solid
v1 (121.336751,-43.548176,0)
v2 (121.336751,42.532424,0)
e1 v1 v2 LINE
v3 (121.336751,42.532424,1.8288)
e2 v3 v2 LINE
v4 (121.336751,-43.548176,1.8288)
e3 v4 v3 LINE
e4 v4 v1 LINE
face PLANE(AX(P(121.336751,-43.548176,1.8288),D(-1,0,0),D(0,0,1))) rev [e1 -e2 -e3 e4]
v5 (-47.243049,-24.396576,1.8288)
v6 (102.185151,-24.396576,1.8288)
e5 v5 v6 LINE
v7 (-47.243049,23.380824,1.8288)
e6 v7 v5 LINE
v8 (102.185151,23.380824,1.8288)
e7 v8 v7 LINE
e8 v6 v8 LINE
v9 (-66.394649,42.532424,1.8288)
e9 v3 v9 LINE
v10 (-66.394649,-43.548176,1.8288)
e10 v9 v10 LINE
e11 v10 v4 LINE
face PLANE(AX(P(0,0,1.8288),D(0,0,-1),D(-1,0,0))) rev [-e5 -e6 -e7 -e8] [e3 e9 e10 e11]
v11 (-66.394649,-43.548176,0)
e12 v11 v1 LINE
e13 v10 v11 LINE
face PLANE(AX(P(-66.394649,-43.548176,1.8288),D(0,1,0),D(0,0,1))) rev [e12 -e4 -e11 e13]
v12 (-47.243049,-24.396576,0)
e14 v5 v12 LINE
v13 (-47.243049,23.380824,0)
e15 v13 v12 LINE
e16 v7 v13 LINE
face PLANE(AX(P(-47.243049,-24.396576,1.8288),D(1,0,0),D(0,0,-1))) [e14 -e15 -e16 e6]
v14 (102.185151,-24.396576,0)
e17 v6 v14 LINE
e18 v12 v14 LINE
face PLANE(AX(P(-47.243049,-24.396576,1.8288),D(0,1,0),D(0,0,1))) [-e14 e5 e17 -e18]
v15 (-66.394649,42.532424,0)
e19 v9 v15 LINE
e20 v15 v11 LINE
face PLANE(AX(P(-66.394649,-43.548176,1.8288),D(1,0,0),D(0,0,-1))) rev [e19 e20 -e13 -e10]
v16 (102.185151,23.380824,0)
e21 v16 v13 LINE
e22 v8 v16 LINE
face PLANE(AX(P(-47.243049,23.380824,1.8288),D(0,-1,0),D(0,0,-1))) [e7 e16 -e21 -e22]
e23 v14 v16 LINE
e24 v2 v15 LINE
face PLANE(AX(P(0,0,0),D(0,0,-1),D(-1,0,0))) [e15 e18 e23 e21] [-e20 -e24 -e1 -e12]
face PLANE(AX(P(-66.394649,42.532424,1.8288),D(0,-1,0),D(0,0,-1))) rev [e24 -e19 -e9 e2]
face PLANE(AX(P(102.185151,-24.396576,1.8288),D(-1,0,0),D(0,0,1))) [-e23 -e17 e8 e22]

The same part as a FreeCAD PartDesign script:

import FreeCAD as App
import Part
import Sketcher
from FreeCAD import Vector
Q = App.Units.Quantity


def add_polygon(sketch, points):
    """Adds a closed chain of lines whose ends are joined by coincident constraints."""
    first, n = sketch.GeometryCount, len(points)
    for a, b in zip(points, points[1:] + points[:1]):
        sketch.addGeometry(Part.LineSegment(App.Vector(*a, 0), App.Vector(*b, 0)), False)
    for i in range(n):
        sketch.addConstraint(Sketcher.Constraint("Coincident", first + i, 2, first + (i + 1) % n, 1))

doc = App.newDocument("Part")
body = doc.addObject("PartDesign::Body", "Body")

# Sketch on XY plane
sketch1 = body.newObject("Sketcher::SketchObject", "Sketch")
sketch1.AttachmentSupport = (doc.getObject("XY_Plane"), [""])
sketch1.MapMode = "FlatFace"
add_polygon(sketch1, [(-66, 43), (-66, -44), (121, -44), (121, 43)])  # lines 0-3
add_polygon(sketch1, [(102, -24), (-47, -24), (-47, 23), (102, 23)])  # lines 4-7
sketch1.addConstraint(Sketcher.Constraint("Vertical", 0))
sketch1.addConstraint(Sketcher.Constraint("Horizontal", 1))
sketch1.addConstraint(Sketcher.Constraint("Vertical", 2))
sketch1.addConstraint(Sketcher.Constraint("Horizontal", 3))
sketch1.addConstraint(Sketcher.Constraint("Horizontal", 4))
sketch1.addConstraint(Sketcher.Constraint("Vertical", 5))
sketch1.addConstraint(Sketcher.Constraint("Horizontal", 6))
sketch1.addConstraint(Sketcher.Constraint("Vertical", 7))
sketch1.addConstraint(Sketcher.Constraint("DistanceX", 1, 1, 1, 2, Q("7.391 in")))
sketch1.addConstraint(Sketcher.Constraint("DistanceX", 4, 2, 4, 1, Q("5.883 in")))
sketch1.addConstraint(Sketcher.Constraint("DistanceY", 0, 2, 0, 1, Q("3.389 in")))
sketch1.addConstraint(Sketcher.Constraint("DistanceY", 5, 1, 5, 2, Q("1.881 in")))
sketch1.addConstraint(Sketcher.Constraint("DistanceX", 0, 2, 4, 2, Q("0.754 in")))
sketch1.addConstraint(Sketcher.Constraint("DistanceY", 0, 2, 4, 2, Q("0.754 in")))
sketch1.addConstraint(Sketcher.Constraint("DistanceX", 0, 2, -1, 1, Q("66.394649 mm")))
sketch1.addConstraint(Sketcher.Constraint("DistanceY", 0, 2, -1, 1, Q("43.548176 mm")))
pad1 = body.newObject("PartDesign::Pad", "Pad")
pad1.Profile = sketch1
pad1.Length = Q("0.072 in")

doc.recompute()
